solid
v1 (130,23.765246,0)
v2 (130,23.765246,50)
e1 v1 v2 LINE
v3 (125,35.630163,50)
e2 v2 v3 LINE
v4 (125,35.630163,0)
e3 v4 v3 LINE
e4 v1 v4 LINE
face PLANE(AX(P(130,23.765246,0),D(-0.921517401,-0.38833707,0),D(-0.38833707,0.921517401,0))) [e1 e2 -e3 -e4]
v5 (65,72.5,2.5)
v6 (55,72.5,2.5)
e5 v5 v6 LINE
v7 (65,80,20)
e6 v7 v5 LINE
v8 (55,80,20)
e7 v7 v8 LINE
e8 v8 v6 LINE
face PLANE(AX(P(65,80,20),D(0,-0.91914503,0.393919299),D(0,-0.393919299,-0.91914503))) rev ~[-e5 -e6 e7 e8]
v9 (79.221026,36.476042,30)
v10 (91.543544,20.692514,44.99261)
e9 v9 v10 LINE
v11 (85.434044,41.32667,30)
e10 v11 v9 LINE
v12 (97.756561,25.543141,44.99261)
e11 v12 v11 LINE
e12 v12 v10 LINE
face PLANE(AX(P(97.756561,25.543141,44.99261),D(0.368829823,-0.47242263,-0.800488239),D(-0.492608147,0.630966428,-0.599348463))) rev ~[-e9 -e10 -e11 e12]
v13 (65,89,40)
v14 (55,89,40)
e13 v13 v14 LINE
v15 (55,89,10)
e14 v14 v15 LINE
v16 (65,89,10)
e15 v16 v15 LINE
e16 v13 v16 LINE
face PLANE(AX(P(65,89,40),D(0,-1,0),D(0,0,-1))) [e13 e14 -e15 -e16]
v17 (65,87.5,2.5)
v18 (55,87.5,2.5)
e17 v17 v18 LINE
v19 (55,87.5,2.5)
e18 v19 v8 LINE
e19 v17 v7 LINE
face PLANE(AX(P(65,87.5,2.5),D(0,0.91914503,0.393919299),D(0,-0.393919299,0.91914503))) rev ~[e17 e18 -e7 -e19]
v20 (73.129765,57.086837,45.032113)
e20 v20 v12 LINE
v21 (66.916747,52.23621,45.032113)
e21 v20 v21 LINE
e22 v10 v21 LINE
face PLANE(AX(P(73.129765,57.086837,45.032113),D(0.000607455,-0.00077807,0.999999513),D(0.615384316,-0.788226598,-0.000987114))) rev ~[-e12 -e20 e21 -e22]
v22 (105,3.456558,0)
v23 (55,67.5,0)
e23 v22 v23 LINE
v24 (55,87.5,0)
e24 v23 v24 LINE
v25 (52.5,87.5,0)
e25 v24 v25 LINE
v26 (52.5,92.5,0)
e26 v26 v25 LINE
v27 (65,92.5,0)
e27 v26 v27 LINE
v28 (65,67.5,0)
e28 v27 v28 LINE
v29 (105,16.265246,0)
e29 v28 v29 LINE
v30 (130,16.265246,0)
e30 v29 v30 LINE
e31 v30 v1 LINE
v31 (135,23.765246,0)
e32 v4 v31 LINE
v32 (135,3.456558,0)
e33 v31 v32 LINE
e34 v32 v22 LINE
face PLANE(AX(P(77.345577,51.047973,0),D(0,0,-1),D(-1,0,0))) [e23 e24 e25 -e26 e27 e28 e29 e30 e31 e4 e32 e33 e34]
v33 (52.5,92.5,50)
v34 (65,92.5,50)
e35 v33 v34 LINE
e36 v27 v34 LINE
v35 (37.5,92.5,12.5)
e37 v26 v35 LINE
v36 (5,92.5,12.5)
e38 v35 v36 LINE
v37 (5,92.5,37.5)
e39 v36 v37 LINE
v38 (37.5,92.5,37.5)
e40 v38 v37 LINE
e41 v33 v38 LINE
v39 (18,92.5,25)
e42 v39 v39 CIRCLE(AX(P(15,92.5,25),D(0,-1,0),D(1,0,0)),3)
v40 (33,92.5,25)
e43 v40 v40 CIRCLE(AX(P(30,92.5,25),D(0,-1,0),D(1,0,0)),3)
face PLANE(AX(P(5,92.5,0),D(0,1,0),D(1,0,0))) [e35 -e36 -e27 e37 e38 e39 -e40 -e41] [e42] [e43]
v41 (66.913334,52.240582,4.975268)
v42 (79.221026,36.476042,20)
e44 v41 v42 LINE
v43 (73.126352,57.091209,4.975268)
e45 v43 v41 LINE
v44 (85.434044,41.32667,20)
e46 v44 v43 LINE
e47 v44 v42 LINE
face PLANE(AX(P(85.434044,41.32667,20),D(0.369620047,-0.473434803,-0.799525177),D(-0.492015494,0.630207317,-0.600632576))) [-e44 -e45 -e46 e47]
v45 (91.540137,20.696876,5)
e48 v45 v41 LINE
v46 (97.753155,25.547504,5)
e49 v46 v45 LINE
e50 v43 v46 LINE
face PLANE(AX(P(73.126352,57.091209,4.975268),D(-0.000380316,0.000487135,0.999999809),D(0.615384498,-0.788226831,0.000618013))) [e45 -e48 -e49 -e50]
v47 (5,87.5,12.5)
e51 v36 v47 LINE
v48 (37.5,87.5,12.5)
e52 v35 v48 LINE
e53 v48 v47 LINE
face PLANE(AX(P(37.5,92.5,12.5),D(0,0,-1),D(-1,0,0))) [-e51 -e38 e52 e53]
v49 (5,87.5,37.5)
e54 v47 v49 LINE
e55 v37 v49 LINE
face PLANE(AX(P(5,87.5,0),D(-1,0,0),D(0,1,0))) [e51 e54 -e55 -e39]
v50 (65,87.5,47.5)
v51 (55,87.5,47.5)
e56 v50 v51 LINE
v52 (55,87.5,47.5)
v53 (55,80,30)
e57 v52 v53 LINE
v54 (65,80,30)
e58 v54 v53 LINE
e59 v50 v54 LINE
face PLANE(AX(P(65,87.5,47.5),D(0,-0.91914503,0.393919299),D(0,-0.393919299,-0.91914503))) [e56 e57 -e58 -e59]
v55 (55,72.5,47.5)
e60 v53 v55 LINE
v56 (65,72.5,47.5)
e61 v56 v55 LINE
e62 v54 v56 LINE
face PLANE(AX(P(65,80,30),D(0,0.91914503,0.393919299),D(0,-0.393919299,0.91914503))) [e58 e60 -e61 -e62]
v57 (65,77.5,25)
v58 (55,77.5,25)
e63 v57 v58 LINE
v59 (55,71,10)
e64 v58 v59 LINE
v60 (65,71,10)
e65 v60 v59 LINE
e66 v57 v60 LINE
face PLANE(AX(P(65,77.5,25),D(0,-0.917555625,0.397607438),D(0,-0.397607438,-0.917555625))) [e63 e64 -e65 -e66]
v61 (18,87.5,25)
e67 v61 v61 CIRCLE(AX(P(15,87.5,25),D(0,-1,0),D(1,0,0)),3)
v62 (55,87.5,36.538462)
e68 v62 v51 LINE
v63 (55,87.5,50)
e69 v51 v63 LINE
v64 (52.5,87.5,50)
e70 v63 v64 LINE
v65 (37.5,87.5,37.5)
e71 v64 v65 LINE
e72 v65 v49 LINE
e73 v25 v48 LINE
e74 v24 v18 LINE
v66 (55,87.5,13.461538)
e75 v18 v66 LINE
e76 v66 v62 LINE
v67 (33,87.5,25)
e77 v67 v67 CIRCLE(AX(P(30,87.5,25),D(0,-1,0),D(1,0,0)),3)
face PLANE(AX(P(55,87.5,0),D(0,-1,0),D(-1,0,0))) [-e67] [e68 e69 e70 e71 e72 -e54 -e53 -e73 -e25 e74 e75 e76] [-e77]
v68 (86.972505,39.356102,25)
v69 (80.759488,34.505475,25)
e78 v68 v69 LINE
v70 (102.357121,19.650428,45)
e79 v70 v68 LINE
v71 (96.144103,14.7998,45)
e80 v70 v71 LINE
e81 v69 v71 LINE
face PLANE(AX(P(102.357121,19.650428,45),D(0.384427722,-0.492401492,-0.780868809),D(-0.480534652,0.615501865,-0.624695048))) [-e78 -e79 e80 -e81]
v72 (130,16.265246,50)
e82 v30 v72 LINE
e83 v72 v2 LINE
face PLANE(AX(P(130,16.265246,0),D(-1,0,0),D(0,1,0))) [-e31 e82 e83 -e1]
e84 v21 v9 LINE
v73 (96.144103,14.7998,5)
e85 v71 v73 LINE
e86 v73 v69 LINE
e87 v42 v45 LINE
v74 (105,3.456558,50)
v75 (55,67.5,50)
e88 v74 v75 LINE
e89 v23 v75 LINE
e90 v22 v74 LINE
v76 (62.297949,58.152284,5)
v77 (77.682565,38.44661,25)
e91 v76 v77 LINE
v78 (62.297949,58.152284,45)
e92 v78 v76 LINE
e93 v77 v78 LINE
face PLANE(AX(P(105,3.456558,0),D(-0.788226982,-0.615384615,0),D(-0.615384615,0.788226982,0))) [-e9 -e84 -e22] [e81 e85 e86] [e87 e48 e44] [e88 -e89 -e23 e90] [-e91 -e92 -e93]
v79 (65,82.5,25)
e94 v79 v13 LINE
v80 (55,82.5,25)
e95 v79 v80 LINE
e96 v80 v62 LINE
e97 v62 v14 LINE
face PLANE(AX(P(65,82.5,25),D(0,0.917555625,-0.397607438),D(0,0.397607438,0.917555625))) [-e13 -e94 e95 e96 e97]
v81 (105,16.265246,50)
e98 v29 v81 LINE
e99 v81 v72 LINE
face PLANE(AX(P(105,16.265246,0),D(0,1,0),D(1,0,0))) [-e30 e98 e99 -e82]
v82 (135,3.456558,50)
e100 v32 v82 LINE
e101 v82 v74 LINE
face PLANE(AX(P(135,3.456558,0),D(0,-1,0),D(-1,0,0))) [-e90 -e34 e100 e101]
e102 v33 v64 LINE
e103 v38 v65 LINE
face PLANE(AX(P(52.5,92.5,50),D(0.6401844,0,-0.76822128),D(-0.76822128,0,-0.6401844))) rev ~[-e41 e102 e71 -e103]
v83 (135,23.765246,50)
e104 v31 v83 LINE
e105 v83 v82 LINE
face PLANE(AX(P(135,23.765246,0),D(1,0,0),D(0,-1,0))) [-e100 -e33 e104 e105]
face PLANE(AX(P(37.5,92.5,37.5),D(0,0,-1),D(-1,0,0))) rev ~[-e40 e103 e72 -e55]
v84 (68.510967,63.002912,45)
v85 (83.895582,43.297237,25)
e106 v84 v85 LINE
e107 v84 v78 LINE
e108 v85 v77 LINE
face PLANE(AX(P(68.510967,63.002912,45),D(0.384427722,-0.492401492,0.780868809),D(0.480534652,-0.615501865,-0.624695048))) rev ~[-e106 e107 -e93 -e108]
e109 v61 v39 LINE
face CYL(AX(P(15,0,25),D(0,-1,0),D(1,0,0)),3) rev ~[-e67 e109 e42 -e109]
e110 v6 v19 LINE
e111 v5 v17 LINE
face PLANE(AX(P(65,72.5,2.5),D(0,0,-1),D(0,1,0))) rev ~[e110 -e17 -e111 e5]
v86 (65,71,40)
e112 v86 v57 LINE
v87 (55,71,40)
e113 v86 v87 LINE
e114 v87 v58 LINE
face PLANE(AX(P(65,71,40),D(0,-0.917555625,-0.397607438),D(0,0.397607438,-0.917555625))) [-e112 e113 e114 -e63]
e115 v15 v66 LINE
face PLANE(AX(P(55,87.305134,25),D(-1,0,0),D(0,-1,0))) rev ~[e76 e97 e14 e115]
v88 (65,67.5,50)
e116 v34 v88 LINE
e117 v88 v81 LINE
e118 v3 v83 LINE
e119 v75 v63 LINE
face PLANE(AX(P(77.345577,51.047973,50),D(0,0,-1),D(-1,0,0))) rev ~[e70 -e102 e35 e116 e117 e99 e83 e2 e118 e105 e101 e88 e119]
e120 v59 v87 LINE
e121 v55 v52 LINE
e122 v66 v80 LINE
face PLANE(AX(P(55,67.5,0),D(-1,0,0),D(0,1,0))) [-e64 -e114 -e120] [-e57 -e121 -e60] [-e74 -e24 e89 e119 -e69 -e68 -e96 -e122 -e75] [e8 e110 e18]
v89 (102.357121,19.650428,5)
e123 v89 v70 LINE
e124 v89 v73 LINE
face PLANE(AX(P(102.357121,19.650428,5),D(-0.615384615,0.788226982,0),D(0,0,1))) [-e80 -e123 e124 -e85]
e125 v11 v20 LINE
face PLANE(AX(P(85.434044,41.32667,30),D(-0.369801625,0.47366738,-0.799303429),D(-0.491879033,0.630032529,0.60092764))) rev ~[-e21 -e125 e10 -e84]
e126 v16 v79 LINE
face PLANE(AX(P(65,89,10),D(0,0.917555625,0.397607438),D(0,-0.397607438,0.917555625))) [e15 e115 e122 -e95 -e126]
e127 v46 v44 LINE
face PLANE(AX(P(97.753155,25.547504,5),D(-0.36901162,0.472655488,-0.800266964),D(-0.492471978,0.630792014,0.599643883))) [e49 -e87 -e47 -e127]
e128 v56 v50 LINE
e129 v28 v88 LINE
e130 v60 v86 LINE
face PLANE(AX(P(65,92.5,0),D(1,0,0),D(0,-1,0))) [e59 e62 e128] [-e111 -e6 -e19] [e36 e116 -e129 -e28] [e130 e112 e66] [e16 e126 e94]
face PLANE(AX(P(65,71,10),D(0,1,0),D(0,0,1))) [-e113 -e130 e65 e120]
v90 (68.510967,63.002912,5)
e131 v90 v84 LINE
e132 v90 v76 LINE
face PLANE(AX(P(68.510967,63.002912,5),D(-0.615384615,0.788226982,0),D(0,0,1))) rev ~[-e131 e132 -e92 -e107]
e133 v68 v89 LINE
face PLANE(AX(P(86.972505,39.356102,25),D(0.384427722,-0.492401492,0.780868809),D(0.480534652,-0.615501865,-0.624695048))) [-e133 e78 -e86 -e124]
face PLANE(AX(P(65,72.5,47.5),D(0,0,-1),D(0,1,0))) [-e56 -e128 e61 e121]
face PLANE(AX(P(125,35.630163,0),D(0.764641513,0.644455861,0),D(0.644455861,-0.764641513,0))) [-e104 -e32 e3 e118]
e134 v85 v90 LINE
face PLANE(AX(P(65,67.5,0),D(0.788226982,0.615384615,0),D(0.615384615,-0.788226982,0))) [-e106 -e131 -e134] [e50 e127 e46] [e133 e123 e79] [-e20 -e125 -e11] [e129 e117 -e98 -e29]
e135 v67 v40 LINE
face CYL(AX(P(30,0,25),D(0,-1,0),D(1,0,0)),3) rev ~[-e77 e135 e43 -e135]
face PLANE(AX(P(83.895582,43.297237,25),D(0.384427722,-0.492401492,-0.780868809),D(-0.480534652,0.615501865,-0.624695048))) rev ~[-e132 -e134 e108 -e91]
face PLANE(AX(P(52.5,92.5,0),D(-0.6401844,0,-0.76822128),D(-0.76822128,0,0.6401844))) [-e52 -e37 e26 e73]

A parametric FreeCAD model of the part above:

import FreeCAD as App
import Part
import Sketcher
from FreeCAD import Vector
Q = App.Units.Quantity


def add_polygon(sketch, points):
    """Adds a closed chain of lines whose ends are joined by coincident constraints."""
    first, n = sketch.GeometryCount, len(points)
    for a, b in zip(points, points[1:] + points[:1]):
        sketch.addGeometry(Part.LineSegment(App.Vector(*a, 0), App.Vector(*b, 0)), False)
    for i in range(n):
        sketch.addConstraint(Sketcher.Constraint("Coincident", first + i, 2, first + (i + 1) % n, 1))

doc = App.newDocument("Part")
body = doc.addObject("PartDesign::Body", "Body")

# Sketch on XY plane
sketch1 = body.newObject("Sketcher::SketchObject", "Sketch")
sketch1.AttachmentSupport = (doc.getObject("XY_Plane"), [""])
sketch1.MapMode = "FlatFace"
add_polygon(sketch1, [(65, 92), (5, 92), (5, 88), (55, 88), (55, 68), (105, 3), (135, 3), (135, 24), (125, 36), (130, 24), (130, 16), (105, 16), (65, 68)])  # lines 0-12
sketch1.addConstraint(Sketcher.Constraint("Horizontal", 0))
sketch1.addConstraint(Sketcher.Constraint("Vertical", 1))
sketch1.addConstraint(Sketcher.Constraint("Horizontal", 2))
sketch1.addConstraint(Sketcher.Constraint("Vertical", 3))
sketch1.addConstraint(Sketcher.Constraint("Horizontal", 5))
sketch1.addConstraint(Sketcher.Constraint("Vertical", 6))
sketch1.addConstraint(Sketcher.Constraint("Vertical", 9))
sketch1.addConstraint(Sketcher.Constraint("Horizontal", 10))
sketch1.addConstraint(Sketcher.Constraint("Vertical", 12))
sketch1.addConstraint(Sketcher.Constraint("Parallel", 4, 11))
sketch1.addConstraint(Sketcher.Constraint("Horizontal", 6, 2, 8, 2))
sketch1.addConstraint(Sketcher.Constraint("Horizontal", 3, 2, 11, 2))
sketch1.addConstraint(Sketcher.Constraint("Vertical", 4, 2, 10, 2))
sketch1.addConstraint(Sketcher.Constraint("Equal", 10, 12))
sketch1.addConstraint(Sketcher.Constraint("DistanceX", 0, 2, 0, 1, Q("60 mm")))
sketch1.addConstraint(Sketcher.Constraint("DistanceX", 2, 1, 2, 2, Q("50 mm")))
sketch1.addConstraint(Sketcher.Constraint("DistanceX", 5, 1, 5, 2, Q("30 mm")))
sketch1.addConstraint(Sketcher.Constraint("DistanceX", 10, 2, 10, 1, Q("25 mm")))
sketch1.addConstraint(Sketcher.Constraint("DistanceY", 1, 2, 1, 1, Q("5 mm")))
sketch1.addConstraint(Sketcher.Constraint("Distance", 11, Q("65 mm")))
sketch1.addConstraint(Sketcher.Constraint("DistanceY", 9, 2, 9, 1, Q("7.5 mm")))
sketch1.addConstraint(Sketcher.Constraint("DistanceX", -1, 1, 0, 2, Q("5 mm")))
sketch1.addConstraint(Sketcher.Constraint("DistanceX", -1, 1, 4, 2, Q("105 mm")))
sketch1.addConstraint(Sketcher.Constraint("DistanceX", -1, 1, 7, 2, Q("125 mm")))
sketch1.addConstraint(Sketcher.Constraint("DistanceY", -1, 1, 0, 2, Q("92.5 mm")))
sketch1.addConstraint(Sketcher.Constraint("Distance", 7, Q("15.516966 mm")))
pad1 = body.newObject("PartDesign::Pad", "Pad")
pad1.Profile = sketch1
pad1.Length = 50

# Sketch on YZ plane
sketch2 = body.newObject("Sketcher::SketchObject", "Sketch001")
sketch2.AttachmentSupport = (doc.getObject("YZ_Plane"), [""])
sketch2.MapMode = "FlatFace"
sketch2.AttachmentOffset = App.Placement(Vector(0, 0, 65), App.Rotation())
add_polygon(sketch2, [(88, 48), (72, 48), (80, 30)])  # lines 0-2
add_polygon(sketch2, [(80, 20), (72, 2), (88, 2)])  # lines 3-5
add_polygon(sketch2, [(78, 25), (71, 40), (71, 10)])  # lines 6-8
add_polygon(sketch2, [(89, 40), (82, 25), (89, 10)])  # lines 9-11
sketch2.addConstraint(Sketcher.Constraint("Horizontal", 0))
sketch2.addConstraint(Sketcher.Constraint("Horizontal", 4))
sketch2.addConstraint(Sketcher.Constraint("Vertical", 7))
sketch2.addConstraint(Sketcher.Constraint("Vertical", 11))
sketch2.addConstraint(Sketcher.Constraint("Parallel", 2, 3))
sketch2.addConstraint(Sketcher.Constraint("Parallel", 1, 5))
sketch2.addConstraint(Sketcher.Constraint("Parallel", 8, 9))
sketch2.addConstraint(Sketcher.Constraint("Parallel", 6, 10))
sketch2.addConstraint(Sketcher.Constraint("Horizontal", 8, 2, 9, 2))
sketch2.addConstraint(Sketcher.Constraint("Horizontal", 7, 2, 10, 2))
sketch2.addConstraint(Sketcher.Constraint("Horizontal", 6, 2, 11, 2))
sketch2.addConstraint(Sketcher.Constraint("Vertical", 0, 2, 3, 2))
sketch2.addConstraint(Sketcher.Constraint("Vertical", 2, 2, 4, 2))
sketch2.addConstraint(Sketcher.Constraint("Vertical", 1, 2, 5, 2))
sketch2.addConstraint(Sketcher.Constraint("DistanceX", 0, 2, 0, 1, Q("15 mm")))
sketch2.addConstraint(Sketcher.Constraint("DistanceY", 7, 2, 7, 1, Q("30 mm")))
sketch2.addConstraint(Sketcher.Constraint("DistanceX", -1, 1, 1, 2, Q("80 mm")))
sketch2.addConstraint(Sketcher.Constraint("DistanceY", -1, 1, 1, 2, Q("30 mm")))
sketch2.addConstraint(Sketcher.Constraint("DistanceY", -1, 1, 5, 2, Q("20 mm")))
sketch2.addConstraint(Sketcher.Constraint("DistanceX", -1, 1, 6, 2, Q("71 mm")))
sketch2.addConstraint(Sketcher.Constraint("DistanceY", -1, 1, 6, 2, Q("40 mm")))
sketch2.addConstraint(Sketcher.Constraint("DistanceX", -1, 1, 10, 2, Q("89 mm")))
sketch2.addConstraint(Sketcher.Constraint("DistanceY", 3, 2, 0, 2, Q("45 mm")))
sketch2.addConstraint(Sketcher.Constraint("DistanceX", 0, 2, 8, 2, Q("5 mm")))
pocket1 = body.newObject("PartDesign::Pocket", "Pocket")
pocket1.Profile = sketch2
pocket1.Length = 10

# Sketch on XZ plane
sketch3 = body.newObject("Sketcher::SketchObject", "Sketch002")
sketch3.AttachmentSupport = (doc.getObject("XZ_Plane"), [""])
sketch3.MapMode = "FlatFace"
sketch3.AttachmentOffset = App.Placement(Vector(0, 0, -92.5), App.Rotation())
add_polygon(sketch3, [(52, 50), (38, 38), (5, 38), (5, 50)])  # lines 0-3
sketch3.addConstraint(Sketcher.Constraint("Horizontal", 1))
sketch3.addConstraint(Sketcher.Constraint("Vertical", 2))
sketch3.addConstraint(Sketcher.Constraint("Horizontal", 3))
sketch3.addConstraint(Sketcher.Constraint("DistanceX", 1, 2, 1, 1, Q("32.5 mm")))
sketch3.addConstraint(Sketcher.Constraint("DistanceX", 3, 1, 3, 2, Q("47.5 mm")))
sketch3.addConstraint(Sketcher.Constraint("DistanceY", 2, 1, 2, 2, Q("12.5 mm")))
sketch3.addConstraint(Sketcher.Constraint("DistanceX", -1, 1, 1, 2, Q("5 mm")))
sketch3.addConstraint(Sketcher.Constraint("DistanceY", -1, 1, 2, 2, Q("50 mm")))
pocket2 = body.newObject("PartDesign::Pocket", "Pocket001")
pocket2.Profile = sketch3
pocket2.Length = 5
pocket2.Reversed = True

# Sketch on XZ plane
sketch4 = body.newObject("Sketcher::SketchObject", "Sketch003")
sketch4.AttachmentSupport = (doc.getObject("XZ_Plane"), [""])
sketch4.MapMode = "FlatFace"
sketch4.AttachmentOffset = App.Placement(Vector(0, 0, -92.5), App.Rotation())
add_polygon(sketch4, [(38, 13), (52, 0), (5, 0), (5, 12)])  # lines 0-3
sketch4.addConstraint(Sketcher.Constraint("Horizontal", 1))
sketch4.addConstraint(Sketcher.Constraint("Vertical", 2))
sketch4.addConstraint(Sketcher.Constraint("Horizontal", 3))
sketch4.addConstraint(Sketcher.Constraint("PointOnObject", 0, 2, -1))
sketch4.addConstraint(Sketcher.Constraint("DistanceX", 1, 2, 1, 1, Q("47.5 mm")))
sketch4.addConstraint(Sketcher.Constraint("DistanceX", 3, 1, 3, 2, Q("32.5 mm")))
sketch4.addConstraint(Sketcher.Constraint("DistanceY", 2, 1, 2, 2, Q("12.5 mm")))
sketch4.addConstraint(Sketcher.Constraint("DistanceX", -1, 1, 1, 2, Q("5 mm")))
pocket3 = body.newObject("PartDesign::Pocket", "Pocket002")
pocket3.Profile = sketch4
pocket3.Length = 5
pocket3.Reversed = True

# Sketch on an angled plane
sketch5 = body.newObject("Sketcher::SketchObject", "Sketch004")
sketch5.Placement = App.Placement(Vector(73.126352, 57.091209, 0), App.Rotation(Vector(-0.615384615, 0.788226982, 0), Vector(0, 0, 1), Vector(0.788226982, 0.615384615, 0), "ZXY"))
add_polygon(sketch5, [(7, 5), (7, 45), (-17, 25)])  # lines 0-2
add_polygon(sketch5, [(-47, 45), (-47, 5), (-22, 25)])  # lines 3-5
add_polygon(sketch5, [(0, 45), (-40, 45), (-20, 30)])  # lines 6-8
add_polygon(sketch5, [(0, 5), (-20, 20), (-40, 5)])  # lines 9-11
sketch5.addConstraint(Sketcher.Constraint("Vertical", 0))
sketch5.addConstraint(Sketcher.Constraint("Vertical", 3))
sketch5.addConstraint(Sketcher.Constraint("PointOnObject", 11, 2, -2))
sketch5.addConstraint(Sketcher.Constraint("Parallel", 1, 4))
sketch5.addConstraint(Sketcher.Constraint("Parallel", 2, 5))
sketch5.addConstraint(Sketcher.Constraint("Horizontal", 2, 2, 3, 2))
sketch5.addConstraint(Sketcher.Constraint("Horizontal", 1, 2, 4, 2))
sketch5.addConstraint(Sketcher.Constraint("Horizontal", 0, 2, 5, 2))
sketch5.addConstraint(Sketcher.Constraint("Horizontal", 3, 2, 10, 2))
sketch5.addConstraint(Sketcher.Constraint("Vertical", 7, 2, 9, 2))
sketch5.addConstraint(Sketcher.Constraint("Equal", 7, 8))
sketch5.addConstraint(Sketcher.Constraint("Equal", 8, 9))
sketch5.addConstraint(Sketcher.Constraint("Equal", 9, 10))
sketch5.addConstraint(Sketcher.Constraint("Equal", 6, 11))
sketch5.addConstraint(Sketcher.Constraint("DistanceY", 0, 1, 0, 2, Q("40 mm")))
sketch5.addConstraint(Sketcher.Constraint("DistanceY", -1, 1, 0, 2, Q("45 mm")))
sketch5.addConstraint(Sketcher.Constraint("DistanceX", 7, 2, -1, 1, Q("20 mm")))
sketch5.addConstraint(Sketcher.Constraint("DistanceY", -1, 1, 7, 2, Q("30 mm")))
sketch5.addConstraint(Sketcher.Constraint("DistanceY", -1, 1, 9, 2, Q("20 mm")))
sketch5.addConstraint(Sketcher.Constraint("DistanceX", 1, 2, 0, 2, Q("25 mm")))
sketch5.addConstraint(Sketcher.Constraint("DistanceX", 3, 2, 1, 2, Q("30 mm")))
sketch5.addConstraint(Sketcher.Constraint("DistanceX", -1, 1, 0, 2, Q("7.5 mm")))
sketch5.addConstraint(Sketcher.Constraint("DistanceX", 6, 2, -1, 1, Q("40.024091 mm")))
sketch5.addConstraint(Sketcher.Constraint("DistanceY", -1, 1, 6, 2, Q("44.99261 mm")))
pocket4 = body.newObject("PartDesign::Pocket", "Pocket003")
pocket4.Profile = sketch5
pocket4.Type = "ThroughAll"

# Sketch on XZ plane
sketch6 = body.newObject("Sketcher::SketchObject", "Sketch005")
sketch6.AttachmentSupport = (doc.getObject("XZ_Plane"), [""])
sketch6.MapMode = "FlatFace"
sketch6.addGeometry(Part.Circle(Vector(15, 25, 0), Vector(0, 0, 1), 3), False)
sketch6.addGeometry(Part.Circle(Vector(30, 25, 0), Vector(0, 0, 1), 3), False)
sketch6.addConstraint(Sketcher.Constraint("Equal", 0, 1))
sketch6.addConstraint(Sketcher.Constraint("Horizontal", 0, 3, 1, 3))
sketch6.addConstraint(Sketcher.Constraint("Diameter", 0, Q("6 mm")))
sketch6.addConstraint(Sketcher.Constraint("DistanceX", -1, 1, 0, 3, Q("15 mm")))
sketch6.addConstraint(Sketcher.Constraint("DistanceY", -1, 1, 0, 3, Q("25 mm")))
sketch6.addConstraint(Sketcher.Constraint("DistanceX", -1, 1, 1, 3, Q("30 mm")))
pocket5 = body.newObject("PartDesign::Pocket", "Pocket004")
pocket5.Profile = sketch6
pocket5.Type = "ThroughAll"

doc.recompute()
